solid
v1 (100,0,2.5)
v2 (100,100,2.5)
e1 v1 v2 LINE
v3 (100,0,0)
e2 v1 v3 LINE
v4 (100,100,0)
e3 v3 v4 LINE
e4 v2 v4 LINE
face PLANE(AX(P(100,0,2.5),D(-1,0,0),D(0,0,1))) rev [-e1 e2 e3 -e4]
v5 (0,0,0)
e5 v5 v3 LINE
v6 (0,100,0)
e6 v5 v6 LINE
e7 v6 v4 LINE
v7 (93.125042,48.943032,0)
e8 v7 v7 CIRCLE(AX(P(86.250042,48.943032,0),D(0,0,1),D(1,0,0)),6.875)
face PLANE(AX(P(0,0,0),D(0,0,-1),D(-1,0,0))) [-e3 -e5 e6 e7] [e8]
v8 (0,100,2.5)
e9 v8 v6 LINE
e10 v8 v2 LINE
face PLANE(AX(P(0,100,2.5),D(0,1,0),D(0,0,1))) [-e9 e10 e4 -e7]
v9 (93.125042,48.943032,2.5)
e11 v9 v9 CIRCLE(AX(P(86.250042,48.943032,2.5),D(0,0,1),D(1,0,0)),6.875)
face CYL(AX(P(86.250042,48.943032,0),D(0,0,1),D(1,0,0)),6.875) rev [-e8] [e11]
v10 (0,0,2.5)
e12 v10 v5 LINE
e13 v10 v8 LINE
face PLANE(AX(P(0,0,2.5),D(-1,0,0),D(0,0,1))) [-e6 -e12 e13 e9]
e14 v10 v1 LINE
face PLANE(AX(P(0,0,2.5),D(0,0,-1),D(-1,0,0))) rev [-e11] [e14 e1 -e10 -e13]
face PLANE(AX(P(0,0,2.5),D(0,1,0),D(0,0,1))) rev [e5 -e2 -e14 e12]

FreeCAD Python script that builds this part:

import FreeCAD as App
import Part
import Sketcher

doc = App.newDocument("Part")
body = doc.addObject("PartDesign::Body", "Body")

sketch1 = body.newObject("Sketcher::SketchObject", "Sketch")
sketch1.AttachmentSupport = (doc.getObject("XY_Plane"), [""])
sketch1.MapMode = "FlatFace"
sketch1.addGeometry([
    Part.LineSegment(App.Vector(0, 100, 0), App.Vector(0, 0, 0)),
    Part.LineSegment(App.Vector(0, 0, 0), App.Vector(100, 0, 0)),
    Part.LineSegment(App.Vector(100, 0, 0), App.Vector(100, 100, 0)),
    Part.LineSegment(App.Vector(100, 100, 0), App.Vector(0, 100, 0)),
], False)
sketch1.addConstraint([
    Sketcher.Constraint("Coincident", 0, 2, 1, 1),
    Sketcher.Constraint("Coincident", 1, 2, 2, 1),
    Sketcher.Constraint("Coincident", 2, 2, 3, 1),
    Sketcher.Constraint("Coincident", 3, 2, 0, 1),
    Sketcher.Constraint("Vertical", 0),
    Sketcher.Constraint("Horizontal", 1),
    Sketcher.Constraint("Vertical", 2),
    Sketcher.Constraint("Horizontal", 3),
    Sketcher.Constraint("Coincident", 0, 2, -1, 1),
    Sketcher.Constraint("Equal", 3, 0),
    Sketcher.Constraint("DistanceX", 1, 1, 1, 2, 100.0),
])
pad1 = body.newObject("PartDesign::Pad", "Pad")
pad1.Profile = sketch1
pad1.Length = 2.5

sketch2 = body.newObject("Sketcher::SketchObject", "Sketch001")
sketch2.AttachmentSupport = (doc.getObject("XY_Plane"), [""])
sketch2.MapMode = "FlatFace"
sketch2.AttachmentOffset = App.Placement(App.Vector(0, 0, 2.5), App.Rotation())
sketch2.addGeometry(Part.Circle(App.Vector(86.250042, 48.943032, 0), App.Vector(0, 0, 1), 6.875), False)
sketch2.addConstraint([
    Sketcher.Constraint("Diameter", 0, 13.75),
    Sketcher.Constraint("DistanceY", -1, 1, 0, 3, 48.943032),
    Sketcher.Constraint("DistanceX", -1, 1, 0, 3, 86.250042),
])
pocket1 = body.newObject("PartDesign::Pocket", "Pocket")
pocket1.Profile = sketch2
pocket1.Type = "ThroughAll"

doc.recompute()
